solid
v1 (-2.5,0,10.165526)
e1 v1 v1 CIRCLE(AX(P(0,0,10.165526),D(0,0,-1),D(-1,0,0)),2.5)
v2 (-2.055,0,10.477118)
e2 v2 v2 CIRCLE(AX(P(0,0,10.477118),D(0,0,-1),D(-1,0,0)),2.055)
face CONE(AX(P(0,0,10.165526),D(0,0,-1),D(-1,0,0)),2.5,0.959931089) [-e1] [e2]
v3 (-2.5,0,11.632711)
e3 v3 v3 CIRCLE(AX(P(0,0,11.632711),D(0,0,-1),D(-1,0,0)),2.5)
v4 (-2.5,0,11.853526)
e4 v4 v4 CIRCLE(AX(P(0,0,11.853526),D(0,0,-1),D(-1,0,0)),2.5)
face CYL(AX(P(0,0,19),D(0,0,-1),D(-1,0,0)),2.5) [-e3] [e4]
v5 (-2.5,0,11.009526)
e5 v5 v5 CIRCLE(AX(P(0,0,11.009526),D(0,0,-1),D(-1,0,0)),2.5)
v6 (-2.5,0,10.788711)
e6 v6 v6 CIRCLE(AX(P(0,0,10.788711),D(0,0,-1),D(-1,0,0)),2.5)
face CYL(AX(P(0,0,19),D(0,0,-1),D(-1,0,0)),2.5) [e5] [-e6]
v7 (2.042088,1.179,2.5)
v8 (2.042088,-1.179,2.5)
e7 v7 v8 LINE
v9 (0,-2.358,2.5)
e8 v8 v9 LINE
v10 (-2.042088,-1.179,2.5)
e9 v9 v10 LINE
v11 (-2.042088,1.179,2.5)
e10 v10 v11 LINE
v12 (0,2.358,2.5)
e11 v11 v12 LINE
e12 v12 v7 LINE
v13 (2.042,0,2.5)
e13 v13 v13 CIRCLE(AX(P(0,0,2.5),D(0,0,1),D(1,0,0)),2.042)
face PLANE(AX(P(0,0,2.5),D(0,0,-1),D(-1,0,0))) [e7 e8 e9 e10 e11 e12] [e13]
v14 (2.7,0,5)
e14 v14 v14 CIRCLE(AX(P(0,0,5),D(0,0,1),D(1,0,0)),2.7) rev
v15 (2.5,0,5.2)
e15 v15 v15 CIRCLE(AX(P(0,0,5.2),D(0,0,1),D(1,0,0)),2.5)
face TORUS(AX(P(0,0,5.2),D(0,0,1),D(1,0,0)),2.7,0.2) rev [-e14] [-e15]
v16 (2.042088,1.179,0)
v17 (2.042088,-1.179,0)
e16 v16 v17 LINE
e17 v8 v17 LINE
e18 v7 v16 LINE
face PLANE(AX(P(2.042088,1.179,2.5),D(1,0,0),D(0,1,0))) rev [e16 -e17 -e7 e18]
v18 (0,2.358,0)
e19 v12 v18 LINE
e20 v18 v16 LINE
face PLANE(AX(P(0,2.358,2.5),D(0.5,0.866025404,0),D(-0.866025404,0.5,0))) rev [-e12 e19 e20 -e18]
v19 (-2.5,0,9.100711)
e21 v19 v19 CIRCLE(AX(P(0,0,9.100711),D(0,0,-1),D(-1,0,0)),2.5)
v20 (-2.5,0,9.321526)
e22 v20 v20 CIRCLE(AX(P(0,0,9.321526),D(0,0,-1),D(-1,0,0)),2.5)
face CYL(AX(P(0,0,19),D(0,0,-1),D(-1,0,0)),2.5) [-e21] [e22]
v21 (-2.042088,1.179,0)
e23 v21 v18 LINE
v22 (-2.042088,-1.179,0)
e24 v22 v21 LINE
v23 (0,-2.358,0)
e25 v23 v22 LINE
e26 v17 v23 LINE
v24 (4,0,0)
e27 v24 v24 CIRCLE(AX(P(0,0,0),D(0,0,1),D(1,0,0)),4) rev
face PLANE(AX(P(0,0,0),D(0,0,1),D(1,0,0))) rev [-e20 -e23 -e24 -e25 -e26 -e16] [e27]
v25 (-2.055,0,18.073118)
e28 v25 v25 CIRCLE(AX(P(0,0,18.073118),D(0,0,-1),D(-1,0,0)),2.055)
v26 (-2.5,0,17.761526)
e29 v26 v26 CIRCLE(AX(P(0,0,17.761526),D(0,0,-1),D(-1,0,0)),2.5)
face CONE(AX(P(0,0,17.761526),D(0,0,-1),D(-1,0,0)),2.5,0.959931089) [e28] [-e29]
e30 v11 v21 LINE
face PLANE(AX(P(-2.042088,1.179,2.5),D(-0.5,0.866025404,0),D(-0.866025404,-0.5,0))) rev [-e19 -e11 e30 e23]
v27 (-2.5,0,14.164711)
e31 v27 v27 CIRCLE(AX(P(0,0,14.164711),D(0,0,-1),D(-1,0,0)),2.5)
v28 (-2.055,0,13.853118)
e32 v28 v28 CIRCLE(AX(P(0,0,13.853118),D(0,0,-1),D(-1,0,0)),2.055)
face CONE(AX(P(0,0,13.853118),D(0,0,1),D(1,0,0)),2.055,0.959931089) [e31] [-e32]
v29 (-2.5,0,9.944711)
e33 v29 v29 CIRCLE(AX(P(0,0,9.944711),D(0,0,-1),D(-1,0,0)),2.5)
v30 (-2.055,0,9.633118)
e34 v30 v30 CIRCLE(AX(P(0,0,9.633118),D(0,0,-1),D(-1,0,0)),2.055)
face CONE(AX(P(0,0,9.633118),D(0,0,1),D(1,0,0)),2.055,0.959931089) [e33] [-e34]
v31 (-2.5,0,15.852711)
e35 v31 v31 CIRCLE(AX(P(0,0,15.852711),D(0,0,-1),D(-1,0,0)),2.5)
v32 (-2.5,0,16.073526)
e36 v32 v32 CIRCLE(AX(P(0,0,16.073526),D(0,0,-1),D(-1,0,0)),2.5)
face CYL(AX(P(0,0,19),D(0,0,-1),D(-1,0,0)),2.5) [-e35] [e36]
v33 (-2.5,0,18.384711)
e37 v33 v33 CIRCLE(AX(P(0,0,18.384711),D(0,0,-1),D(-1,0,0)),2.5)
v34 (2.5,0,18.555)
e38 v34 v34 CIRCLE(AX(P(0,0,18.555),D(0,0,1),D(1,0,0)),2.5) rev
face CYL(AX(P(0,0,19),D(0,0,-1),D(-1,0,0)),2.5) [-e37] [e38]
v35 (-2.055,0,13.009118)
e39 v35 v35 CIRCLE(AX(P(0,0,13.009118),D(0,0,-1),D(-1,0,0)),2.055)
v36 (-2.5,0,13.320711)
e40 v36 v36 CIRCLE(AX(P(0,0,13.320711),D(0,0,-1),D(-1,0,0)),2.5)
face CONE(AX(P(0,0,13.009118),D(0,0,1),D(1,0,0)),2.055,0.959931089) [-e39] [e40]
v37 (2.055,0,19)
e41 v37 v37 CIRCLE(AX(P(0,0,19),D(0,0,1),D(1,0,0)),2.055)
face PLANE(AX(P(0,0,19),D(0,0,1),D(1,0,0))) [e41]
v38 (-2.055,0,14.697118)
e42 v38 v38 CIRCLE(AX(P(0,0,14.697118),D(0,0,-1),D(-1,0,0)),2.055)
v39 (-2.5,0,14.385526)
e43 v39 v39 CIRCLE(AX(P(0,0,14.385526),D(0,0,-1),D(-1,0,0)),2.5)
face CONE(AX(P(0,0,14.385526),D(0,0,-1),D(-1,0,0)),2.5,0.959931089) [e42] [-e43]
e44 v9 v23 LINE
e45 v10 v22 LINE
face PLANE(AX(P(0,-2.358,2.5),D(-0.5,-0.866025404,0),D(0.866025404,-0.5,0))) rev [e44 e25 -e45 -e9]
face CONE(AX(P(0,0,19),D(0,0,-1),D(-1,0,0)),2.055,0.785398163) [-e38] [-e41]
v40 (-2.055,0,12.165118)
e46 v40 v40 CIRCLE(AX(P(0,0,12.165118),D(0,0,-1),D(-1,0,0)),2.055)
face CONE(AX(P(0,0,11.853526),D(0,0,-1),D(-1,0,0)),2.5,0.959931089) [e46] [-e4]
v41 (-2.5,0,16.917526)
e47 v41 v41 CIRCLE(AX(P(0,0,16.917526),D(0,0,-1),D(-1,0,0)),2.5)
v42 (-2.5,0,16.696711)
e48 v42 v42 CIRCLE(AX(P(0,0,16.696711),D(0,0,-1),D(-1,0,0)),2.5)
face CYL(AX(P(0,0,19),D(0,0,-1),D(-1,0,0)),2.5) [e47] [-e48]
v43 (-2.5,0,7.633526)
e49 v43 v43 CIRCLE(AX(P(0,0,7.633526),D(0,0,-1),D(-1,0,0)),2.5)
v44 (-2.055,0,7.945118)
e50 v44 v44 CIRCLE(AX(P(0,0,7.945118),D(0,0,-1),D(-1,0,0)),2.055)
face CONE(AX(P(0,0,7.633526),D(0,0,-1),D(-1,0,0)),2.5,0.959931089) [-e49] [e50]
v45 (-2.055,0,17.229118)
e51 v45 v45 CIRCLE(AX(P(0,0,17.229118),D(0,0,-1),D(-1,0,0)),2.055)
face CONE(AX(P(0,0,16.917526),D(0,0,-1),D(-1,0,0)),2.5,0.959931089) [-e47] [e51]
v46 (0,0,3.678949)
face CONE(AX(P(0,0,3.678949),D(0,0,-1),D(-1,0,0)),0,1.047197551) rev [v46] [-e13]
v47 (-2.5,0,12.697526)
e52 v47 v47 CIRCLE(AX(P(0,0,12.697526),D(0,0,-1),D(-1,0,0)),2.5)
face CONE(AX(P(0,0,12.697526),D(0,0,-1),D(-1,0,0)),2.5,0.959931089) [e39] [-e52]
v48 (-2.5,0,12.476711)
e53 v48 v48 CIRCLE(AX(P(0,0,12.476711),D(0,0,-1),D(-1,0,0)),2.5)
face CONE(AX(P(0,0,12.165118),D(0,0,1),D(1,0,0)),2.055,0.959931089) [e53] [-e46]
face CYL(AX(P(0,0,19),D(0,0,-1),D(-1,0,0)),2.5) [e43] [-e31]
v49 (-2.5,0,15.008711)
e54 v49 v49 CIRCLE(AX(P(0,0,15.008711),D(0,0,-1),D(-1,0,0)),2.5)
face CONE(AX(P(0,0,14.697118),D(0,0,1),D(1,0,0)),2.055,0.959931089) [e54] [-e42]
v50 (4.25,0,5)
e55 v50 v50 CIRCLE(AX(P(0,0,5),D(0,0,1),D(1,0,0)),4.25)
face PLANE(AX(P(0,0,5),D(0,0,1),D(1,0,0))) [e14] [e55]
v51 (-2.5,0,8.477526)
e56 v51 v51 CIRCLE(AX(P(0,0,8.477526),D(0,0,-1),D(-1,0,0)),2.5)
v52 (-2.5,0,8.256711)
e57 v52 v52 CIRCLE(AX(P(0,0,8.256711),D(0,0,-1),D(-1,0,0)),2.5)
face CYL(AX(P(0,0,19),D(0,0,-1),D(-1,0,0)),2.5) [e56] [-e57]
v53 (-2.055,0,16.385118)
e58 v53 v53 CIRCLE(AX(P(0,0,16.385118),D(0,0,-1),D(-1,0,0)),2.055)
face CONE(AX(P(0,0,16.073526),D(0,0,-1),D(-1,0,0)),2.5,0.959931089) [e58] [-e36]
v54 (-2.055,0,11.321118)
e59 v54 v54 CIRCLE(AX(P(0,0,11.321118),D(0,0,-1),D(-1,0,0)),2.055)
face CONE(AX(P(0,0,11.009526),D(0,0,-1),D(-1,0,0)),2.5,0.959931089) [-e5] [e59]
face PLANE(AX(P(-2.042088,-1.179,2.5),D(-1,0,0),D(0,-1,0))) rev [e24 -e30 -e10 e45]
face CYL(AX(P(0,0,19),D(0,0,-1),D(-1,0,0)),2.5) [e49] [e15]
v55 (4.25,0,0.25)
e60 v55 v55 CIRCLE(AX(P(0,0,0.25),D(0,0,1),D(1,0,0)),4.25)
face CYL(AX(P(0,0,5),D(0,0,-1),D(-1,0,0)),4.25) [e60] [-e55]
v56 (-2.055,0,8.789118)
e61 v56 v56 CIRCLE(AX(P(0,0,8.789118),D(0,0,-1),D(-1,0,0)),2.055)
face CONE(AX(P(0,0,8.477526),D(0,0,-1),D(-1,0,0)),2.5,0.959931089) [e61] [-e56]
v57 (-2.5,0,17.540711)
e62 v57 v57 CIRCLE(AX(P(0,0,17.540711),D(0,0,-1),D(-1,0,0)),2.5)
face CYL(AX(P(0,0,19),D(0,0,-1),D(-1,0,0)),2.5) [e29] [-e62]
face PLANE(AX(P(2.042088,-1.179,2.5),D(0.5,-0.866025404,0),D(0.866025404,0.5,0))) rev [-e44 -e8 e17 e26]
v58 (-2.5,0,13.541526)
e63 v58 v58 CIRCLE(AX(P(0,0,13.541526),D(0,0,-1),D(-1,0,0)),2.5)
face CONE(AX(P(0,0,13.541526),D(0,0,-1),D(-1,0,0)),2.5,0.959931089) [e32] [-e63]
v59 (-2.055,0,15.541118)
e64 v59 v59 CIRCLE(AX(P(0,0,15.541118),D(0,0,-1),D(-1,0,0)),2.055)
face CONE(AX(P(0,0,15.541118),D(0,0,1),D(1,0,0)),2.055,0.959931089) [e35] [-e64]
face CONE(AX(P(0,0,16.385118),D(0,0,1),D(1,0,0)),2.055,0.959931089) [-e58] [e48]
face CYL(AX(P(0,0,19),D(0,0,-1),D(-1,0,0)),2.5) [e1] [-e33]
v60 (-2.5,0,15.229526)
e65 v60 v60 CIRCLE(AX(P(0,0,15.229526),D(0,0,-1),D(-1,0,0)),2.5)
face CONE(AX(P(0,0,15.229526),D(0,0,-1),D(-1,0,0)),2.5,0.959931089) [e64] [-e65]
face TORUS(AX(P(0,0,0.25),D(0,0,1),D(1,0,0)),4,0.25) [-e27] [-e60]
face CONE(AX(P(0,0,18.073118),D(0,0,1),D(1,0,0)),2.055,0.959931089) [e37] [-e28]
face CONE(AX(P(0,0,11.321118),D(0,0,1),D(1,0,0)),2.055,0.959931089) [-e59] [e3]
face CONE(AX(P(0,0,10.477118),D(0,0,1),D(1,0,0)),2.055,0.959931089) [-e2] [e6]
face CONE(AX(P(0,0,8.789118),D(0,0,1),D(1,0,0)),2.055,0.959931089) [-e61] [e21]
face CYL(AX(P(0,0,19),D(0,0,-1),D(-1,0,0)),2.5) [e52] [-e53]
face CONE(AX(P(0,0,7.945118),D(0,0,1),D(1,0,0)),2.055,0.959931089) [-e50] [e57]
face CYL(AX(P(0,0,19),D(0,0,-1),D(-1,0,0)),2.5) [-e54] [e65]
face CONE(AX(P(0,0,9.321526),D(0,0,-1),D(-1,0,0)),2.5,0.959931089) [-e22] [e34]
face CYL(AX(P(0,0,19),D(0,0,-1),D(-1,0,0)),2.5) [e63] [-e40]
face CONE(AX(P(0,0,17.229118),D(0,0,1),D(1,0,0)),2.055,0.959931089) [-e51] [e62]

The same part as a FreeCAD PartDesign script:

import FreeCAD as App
import Part
import Sketcher

V = App.Vector
Q = App.Units.Quantity


def edges_at(feature, points):
    """Names of the edges that pass closest to the given points."""
    edges = feature.Shape.Edges
    near = lambda p: min(range(len(edges)), key=lambda i: edges[i].distToShape(Part.Vertex(*p))[0])
    return sorted({f"Edge{near(p) + 1}" for p in points})


def add_polygon(sketch, points):
    """Adds a closed chain of lines whose ends are joined by coincident constraints."""
    first, n = sketch.GeometryCount, len(points)
    for a, b in zip(points, points[1:] + points[:1]):
        sketch.addGeometry(Part.LineSegment(App.Vector(*a, 0), App.Vector(*b, 0)), False)
    for i in range(n):
        sketch.addConstraint(Sketcher.Constraint("Coincident", first + i, 2, first + (i + 1) % n, 1))

doc = App.newDocument("Part")
body = doc.addObject("PartDesign::Body", "Body")

# Sketch on XY plane
sketch1 = body.newObject("Sketcher::SketchObject", "Sketch")
sketch1.AttachmentSupport = (doc.getObject("XY_Plane"), [""])
sketch1.MapMode = "FlatFace"
sketch1.addGeometry(Part.Circle(V(0, 0, 0), V(0, 0, 1), 4.2), False)
sketch1.addConstraint([
    Sketcher.Constraint("Coincident", 0, 3, -1, 1),
    Sketcher.Constraint("Diameter", 0, Q("8.5 mm")),
])
pad1 = body.newObject("PartDesign::Pad", "Pad")
pad1.Profile = sketch1
pad1.Length = 5

# Sketch on XY plane
sketch2 = body.newObject("Sketcher::SketchObject", "Sketch001")
sketch2.AttachmentSupport = (doc.getObject("XY_Plane"), [""])
sketch2.MapMode = "FlatFace"
sketch2.AttachmentOffset = App.Placement(V(0, 0, 5), App.Rotation())
sketch2.addGeometry(Part.Circle(V(0, 0, 0), V(0, 0, 1), 2.5), False)
sketch2.addConstraint([
    Sketcher.Constraint("Coincident", 0, 3, -1, 1),
    Sketcher.Constraint("Diameter", 0, Q("5 mm")),
])
pad2 = body.newObject("PartDesign::Pad", "Pad001")
pad2.Profile = sketch2
pad2.Length = 14

# Sketch on XY plane
sketch3 = body.newObject("Sketcher::SketchObject", "Sketch002")
sketch3.AttachmentSupport = (doc.getObject("XY_Plane"), [""])
sketch3.MapMode = "FlatFace"
add_polygon(sketch3, [(0, 2.4), (2, 1.2), (2, -1.2), (0, -2.4), (-2, -1.2), (-2, 1.2)])  # lines 0-5
sketch3.addConstraint([
    Sketcher.Constraint("Vertical", 1),
    Sketcher.Constraint("Vertical", 4),
    Sketcher.Constraint("Symmetric", 0, 2, 3, 2, -1, 1),
    Sketcher.Constraint("Symmetric", 2, 2, 5, 2, -1, 1),
    Sketcher.Constraint("PointOnObject", 2, 2, -2),
    Sketcher.Constraint("Parallel", 2, 5),
    Sketcher.Constraint("Horizontal", 1, 2, 3, 2),
    Sketcher.Constraint("Angle", 0, Q("-30 deg")),
    Sketcher.Constraint("DistanceY", 1, 2, 1, 1, Q("2.358 mm")),
    Sketcher.Constraint("Distance", 0, Q("2.358 mm")),
])
pocket1 = body.newObject("PartDesign::Pocket", "Pocket")
pocket1.Profile = sketch3
pocket1.Length = 2.5
pocket1.Reversed = True
doc.recompute()

fillet = body.newObject("PartDesign::Fillet", "Fillet")
fillet.Base = (pocket1, edges_at(pocket1, [(-4.25, 0, 0)]))
fillet.Radius = 0.25
doc.recompute()

fillet2 = body.newObject("PartDesign::Fillet", "Fillet001")
fillet2.Base = (fillet, edges_at(fillet, [(-2.5, 0, 5)]))
fillet2.Radius = 0.2
doc.recompute()

chamfer = body.newObject("PartDesign::Chamfer", "Chamfer")
chamfer.Base = (fillet2, edges_at(fillet2, [(-2.5, 0, 19)]))
chamfer.Size = 0.445

# Sketch on YZ plane
sketch4 = body.newObject("Sketcher::SketchObject", "Sketch003")
sketch4.AttachmentSupport = (doc.getObject("YZ_Plane"), [""])
sketch4.MapMode = "FlatFace"
add_polygon(sketch4, [(-2.1, 7.9), (-2.5, 8.3), (-3.1, 8.3), (-3.1, 7.6), (-2.5, 7.6)])  # lines 0-4
sketch4.addConstraint([
    Sketcher.Constraint("Horizontal", 1),
    Sketcher.Constraint("Vertical", 2),
    Sketcher.Constraint("Horizontal", 3),
    Sketcher.Constraint("Vertical", 0, 2, 3, 2),
    Sketcher.Constraint("Equal", 0, 4),
    Sketcher.Constraint("Angle", 0, Q("145 deg")),
    Sketcher.Constraint("DistanceX", 0, 2, -1, 1, Q("2.5 mm")),
    Sketcher.Constraint("DistanceX", 1, 2, 1, 1, Q("0.625 mm")),
    Sketcher.Constraint("DistanceX", 1, 2, 4, 2, Q("1.07 mm")),
    Sketcher.Constraint("DistanceY", -1, 1, 0, 2, Q("8.256711 mm")),
])
groove = body.newObject("PartDesign::Groove", "Groove")
groove.Profile = sketch4
groove.ReferenceAxis = (sketch4, ["V_Axis"])
groove.Angle = 360
doc.recompute()

linearpattern = body.newObject("PartDesign::LinearPattern", "LinearPattern")
linearpattern.Originals = [groove]
linearpattern.Direction = (doc.getObject("Z_Axis"), [""])
linearpattern.Mode = "offset"
linearpattern.Offset = 0.844
linearpattern.Occurrences = 13
body.Tip = linearpattern

# Sketch on YZ plane
sketch5 = body.newObject("Sketcher::SketchObject", "Sketch004")
sketch5.AttachmentSupport = (doc.getObject("YZ_Plane"), [""])
sketch5.MapMode = "FlatFace"
add_polygon(sketch5, [(-2, 2.5), (-2, 0), (0, 0), (0, 3.7)])  # lines 0-3
sketch5.addConstraint([
    Sketcher.Constraint("Vertical", 0),
    Sketcher.Constraint("Horizontal", 1),
    Sketcher.Constraint("Vertical", 2),
    Sketcher.Constraint("Coincident", 1, 2, -1, 1),
    Sketcher.Constraint("Angle", 3, Q("-150 deg")),
    Sketcher.Constraint("DistanceY", 0, 2, 0, 1, Q("2.5 mm")),
    Sketcher.Constraint("DistanceX", 1, 1, 1, 2, Q("2.042 mm")),
])
groove2 = body.newObject("PartDesign::Groove", "Groove001")
groove2.Profile = sketch5
groove2.ReferenceAxis = (sketch5, ["V_Axis"])
groove2.Angle = 360

doc.recompute()
